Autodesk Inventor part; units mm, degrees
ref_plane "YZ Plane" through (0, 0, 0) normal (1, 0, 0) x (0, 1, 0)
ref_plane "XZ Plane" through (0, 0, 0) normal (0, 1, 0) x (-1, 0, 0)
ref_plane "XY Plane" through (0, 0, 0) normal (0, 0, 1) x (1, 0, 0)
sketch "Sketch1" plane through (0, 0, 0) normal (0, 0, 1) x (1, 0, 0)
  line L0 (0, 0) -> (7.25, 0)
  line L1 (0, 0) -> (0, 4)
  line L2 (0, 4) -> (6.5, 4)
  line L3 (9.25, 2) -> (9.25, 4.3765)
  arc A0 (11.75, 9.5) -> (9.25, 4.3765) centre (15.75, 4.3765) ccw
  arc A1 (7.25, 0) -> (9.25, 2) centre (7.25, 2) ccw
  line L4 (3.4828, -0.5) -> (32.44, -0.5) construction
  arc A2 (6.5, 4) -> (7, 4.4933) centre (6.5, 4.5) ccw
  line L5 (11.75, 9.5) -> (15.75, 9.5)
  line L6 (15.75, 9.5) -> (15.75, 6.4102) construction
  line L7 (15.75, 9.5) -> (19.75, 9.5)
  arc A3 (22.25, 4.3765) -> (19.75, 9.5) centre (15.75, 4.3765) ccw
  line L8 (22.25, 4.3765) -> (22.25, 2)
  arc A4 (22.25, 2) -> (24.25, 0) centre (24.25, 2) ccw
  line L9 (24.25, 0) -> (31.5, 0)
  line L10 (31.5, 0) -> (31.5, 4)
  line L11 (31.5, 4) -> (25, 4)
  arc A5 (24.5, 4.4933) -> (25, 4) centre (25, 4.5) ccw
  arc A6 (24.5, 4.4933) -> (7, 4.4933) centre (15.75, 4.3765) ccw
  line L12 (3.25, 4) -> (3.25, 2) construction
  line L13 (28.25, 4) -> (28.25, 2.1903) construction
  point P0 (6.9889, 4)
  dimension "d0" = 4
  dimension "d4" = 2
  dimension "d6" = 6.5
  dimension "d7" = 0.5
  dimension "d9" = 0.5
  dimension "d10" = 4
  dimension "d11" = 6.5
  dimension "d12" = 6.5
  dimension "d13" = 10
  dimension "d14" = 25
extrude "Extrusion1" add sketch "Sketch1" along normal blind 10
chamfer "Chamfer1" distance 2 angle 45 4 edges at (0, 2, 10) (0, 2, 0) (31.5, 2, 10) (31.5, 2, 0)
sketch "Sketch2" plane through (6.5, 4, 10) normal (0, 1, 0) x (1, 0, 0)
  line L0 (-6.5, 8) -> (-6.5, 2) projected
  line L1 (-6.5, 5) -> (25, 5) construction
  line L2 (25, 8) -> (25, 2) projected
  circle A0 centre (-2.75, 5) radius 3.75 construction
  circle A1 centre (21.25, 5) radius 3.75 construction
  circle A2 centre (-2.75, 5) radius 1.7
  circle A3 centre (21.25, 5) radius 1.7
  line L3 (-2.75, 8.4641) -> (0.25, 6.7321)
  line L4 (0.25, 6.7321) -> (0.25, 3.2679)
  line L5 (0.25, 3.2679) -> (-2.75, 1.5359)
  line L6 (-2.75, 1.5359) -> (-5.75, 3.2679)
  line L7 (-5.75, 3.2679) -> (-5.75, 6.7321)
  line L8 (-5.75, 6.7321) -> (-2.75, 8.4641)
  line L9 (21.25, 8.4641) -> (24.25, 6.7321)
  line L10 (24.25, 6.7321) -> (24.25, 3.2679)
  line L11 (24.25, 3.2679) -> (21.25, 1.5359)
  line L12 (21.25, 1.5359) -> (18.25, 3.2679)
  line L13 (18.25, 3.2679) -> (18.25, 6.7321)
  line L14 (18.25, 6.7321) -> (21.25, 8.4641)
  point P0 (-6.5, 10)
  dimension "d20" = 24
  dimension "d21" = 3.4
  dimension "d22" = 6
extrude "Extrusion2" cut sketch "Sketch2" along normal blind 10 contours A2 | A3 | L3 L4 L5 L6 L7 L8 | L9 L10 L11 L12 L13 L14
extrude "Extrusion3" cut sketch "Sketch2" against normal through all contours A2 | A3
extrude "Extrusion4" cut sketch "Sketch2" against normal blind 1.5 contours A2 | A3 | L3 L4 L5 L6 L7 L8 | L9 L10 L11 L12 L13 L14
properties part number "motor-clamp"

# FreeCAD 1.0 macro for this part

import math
import FreeCAD as App
import Part
import Sketcher
Q = App.Units.Quantity


def edges_at(feature, points):
    """Names of the edges that pass closest to the given points."""
    edges = feature.Shape.Edges
    near = lambda p: min(range(len(edges)), key=lambda i: edges[i].distToShape(Part.Vertex(*p))[0])
    return sorted({f"Edge{near(p) + 1}" for p in points})


def add_polygon(sketch, points):
    """Adds a closed chain of lines whose ends are joined by coincident constraints."""
    first, n = sketch.GeometryCount, len(points)
    for a, b in zip(points, points[1:] + points[:1]):
        sketch.addGeometry(Part.LineSegment(App.Vector(*a, 0), App.Vector(*b, 0)), False)
    for i in range(n):
        sketch.addConstraint(Sketcher.Constraint("Coincident", first + i, 2, first + (i + 1) % n, 1))

doc = App.newDocument("Part")
body = doc.addObject("PartDesign::Body", "Body")

# Sketch on XY plane
sketch1 = doc.addObject("Sketcher::SketchObject", "Sketch")
body.addObject(sketch1)
sketch1.AttachmentSupport = (doc.XY_Plane, [""])
sketch1.MapMode = "FlatFace"
sketch1.addGeometry([
    Part.LineSegment(App.Vector(0, 4, 0), App.Vector(0, 0, 0)),  # 0
    Part.LineSegment(App.Vector(0, 0, 0), App.Vector(7.2, 0, 0)),  # 1
    Part.ArcOfCircle(Part.Circle(App.Vector(7.2, 2, 0), App.Vector(0, 0, 1), 2), math.radians(-90), math.radians(0)),  # 2
    Part.LineSegment(App.Vector(9.2, 2, 0), App.Vector(9.2, 4.4, 0)),  # 3
    Part.ArcOfCircle(Part.Circle(App.Vector(15.8, 4.4, 0), App.Vector(0, 0, 1), 6.5), math.radians(128), math.radians(180)),  # 4
    Part.LineSegment(App.Vector(11.8, 9.5, 0), App.Vector(19.8, 9.5, 0)),  # 5
    Part.ArcOfCircle(Part.Circle(App.Vector(15.8, 4.4, 0), App.Vector(0, 0, 1), 6.5), math.radians(0), math.radians(52)),  # 6
    Part.LineSegment(App.Vector(22.2, 4.4, 0), App.Vector(22.2, 2, 0)),  # 7
    Part.ArcOfCircle(Part.Circle(App.Vector(24.2, 2, 0), App.Vector(0, 0, 1), 2), math.radians(180), math.radians(270)),  # 8
    Part.LineSegment(App.Vector(24.2, 0, 0), App.Vector(31.5, 0, 0)),  # 9
    Part.LineSegment(App.Vector(31.5, 0, 0), App.Vector(31.5, 4, 0)),  # 10
    Part.LineSegment(App.Vector(31.5, 4, 0), App.Vector(25, 4, 0)),  # 11
    Part.ArcOfCircle(Part.Circle(App.Vector(25, 4.5, 0), App.Vector(0, 0, 1), 0.5), math.radians(-179), math.radians(-90)),  # 12
    Part.ArcOfCircle(Part.Circle(App.Vector(15.8, 4.4, 0), App.Vector(0, 0, 1), 8.8), math.radians(1), math.radians(179)),  # 13
    Part.ArcOfCircle(Part.Circle(App.Vector(6.5, 4.5, 0), App.Vector(0, 0, 1), 0.5), math.radians(-90), math.radians(-1)),  # 14
    Part.LineSegment(App.Vector(6.5, 4, 0), App.Vector(0, 4, 0)),  # 15
], False)
sketch1.addConstraint([
    Sketcher.Constraint("Coincident", 0, 2, 1, 1),
    Sketcher.Constraint("Tangent", 1, 2, 2, 1),
    Sketcher.Constraint("Tangent", 2, 2, 3, 1),
    Sketcher.Constraint("Tangent", 3, 2, 4, 2),
    Sketcher.Constraint("Coincident", 4, 1, 5, 1),
    Sketcher.Constraint("Coincident", 5, 2, 6, 2),
    Sketcher.Constraint("Tangent", 6, 1, 7, 1),
    Sketcher.Constraint("Tangent", 7, 2, 8, 1),
    Sketcher.Constraint("Tangent", 8, 2, 9, 1),
    Sketcher.Constraint("Coincident", 9, 2, 10, 1),
    Sketcher.Constraint("Coincident", 10, 2, 11, 1),
    Sketcher.Constraint("Tangent", 11, 2, 12, 2),
    Sketcher.Constraint("Tangent", 12, 1, 13, 1),
    Sketcher.Constraint("Tangent", 13, 2, 14, 2),
    Sketcher.Constraint("Tangent", 14, 1, 15, 1),
    Sketcher.Constraint("Coincident", 15, 2, 0, 1),
    Sketcher.Constraint("Vertical", 0),
    Sketcher.Constraint("Horizontal", 1),
    Sketcher.Constraint("Vertical", 3),
    Sketcher.Constraint("Horizontal", 5),
    Sketcher.Constraint("Vertical", 7),
    Sketcher.Constraint("Horizontal", 9),
    Sketcher.Constraint("Vertical", 10),
    Sketcher.Constraint("Horizontal", 11),
    Sketcher.Constraint("Horizontal", 15),
    Sketcher.Constraint("Coincident", 0, 2, -1, 1),
    Sketcher.Constraint("Coincident", 6, 3, 4, 3),
    Sketcher.Constraint("Coincident", 13, 3, 4, 3),
    Sketcher.Constraint("Equal", 4, 6),
    Sketcher.Constraint("Equal", 2, 8),
    Sketcher.Constraint("Equal", 12, 14),
    Sketcher.Constraint("PointOnObject", 8, 2, -1),
    Sketcher.Constraint("Horizontal", 12, 3, 14, 3),
    Sketcher.Constraint("Equal", 1, 9),
    Sketcher.Constraint("Radius", 2, Q("2 mm")),
    Sketcher.Constraint("Radius", 4, Q("6.5 mm")),
    Sketcher.Constraint("Radius", 12, Q("0.5 mm")),
    Sketcher.Constraint("DistanceY", 0, 2, 0, 1, Q("4 mm")),
    Sketcher.Constraint("DistanceX", 11, 2, 11, 1, Q("6.5 mm")),
    Sketcher.Constraint("DistanceX", -1, 1, 12, 3, Q("25 mm")),
    Sketcher.Constraint("DistanceX", 4, 1, 4, 3, Q("4 mm")),
    Sketcher.Constraint("DistanceY", 14, 3, 4, 1, Q("5 mm")),
])
pad1 = doc.addObject("PartDesign::Pad", "Pad")
body.addObject(pad1)
pad1.Profile = sketch1
pad1.Length = 10
doc.recompute()

chamfer = doc.addObject("PartDesign::Chamfer", "Chamfer")
body.addObject(chamfer)
chamfer.Base = (pad1, edges_at(pad1, [
    (0, 2, 10),
    (0, 2, 0),
    (31.5, 2, 10),
    (31.5, 2, 0),
]))
chamfer.Size = 2

# Sketch on XZ plane
sketch2 = doc.addObject("Sketcher::SketchObject", "Sketch001")
body.addObject(sketch2)
sketch2.AttachmentSupport = (doc.XZ_Plane, [""])
sketch2.MapMode = "FlatFace"
sketch2.AttachmentOffset = App.Placement(App.Vector(0, 0, -4), App.Rotation())
add_polygon(sketch2, [(6.8, 3.3), (3.8, 1.5), (0.8, 3.3), (0.8, 6.7), (3.8, 8.5), (6.8, 6.7)])  # lines 0-5
add_polygon(sketch2, [(30.8, 3.3), (27.8, 1.5), (24.8, 3.3), (24.8, 6.7), (27.8, 8.5), (30.8, 6.7)])  # lines 6-11
sketch2.addConstraint([
    Sketcher.Constraint("Vertical", 2),
    Sketcher.Constraint("Vertical", 5),
    Sketcher.Constraint("Vertical", 8),
    Sketcher.Constraint("Vertical", 11),
    Sketcher.Constraint("Parallel", 0, 3),
    Sketcher.Constraint("Parallel", 1, 4),
    Sketcher.Constraint("Parallel", 3, 6),
    Sketcher.Constraint("Parallel", 4, 7),
    Sketcher.Constraint("Parallel", 6, 9),
    Sketcher.Constraint("Parallel", 7, 10),
    Sketcher.Constraint("Horizontal", 2, 2, 4, 2),
    Sketcher.Constraint("Horizontal", 1, 2, 5, 2),
    Sketcher.Constraint("Horizontal", 0, 2, 6, 2),
    Sketcher.Constraint("Horizontal", 5, 2, 7, 2),
    Sketcher.Constraint("Horizontal", 4, 2, 8, 2),
    Sketcher.Constraint("Horizontal", 3, 2, 9, 2),
    Sketcher.Constraint("Horizontal", 8, 2, 10, 2),
    Sketcher.Constraint("Vertical", 0, 2, 3, 2),
    Sketcher.Constraint("DistanceX", 2, 2, 4, 2, Q("6 mm")),
    Sketcher.Constraint("DistanceX", 0, 2, 6, 2, Q("24 mm")),
    Sketcher.Constraint("Angle", 0, Q("-150.0007 deg")),
    Sketcher.Constraint("DistanceX", -1, 1, 0, 2, Q("3.75 mm")),
    Sketcher.Constraint("DistanceY", 2, 1, 2, 2, Q("3.4642 mm")),
    Sketcher.Constraint("DistanceY", -1, 1, 0, 2, Q("1.536 mm")),
])
pocket1 = doc.addObject("PartDesign::Pocket", "Pocket")
body.addObject(pocket1)
pocket1.Profile = sketch2
pocket1.Length = 10

# Sketch on XZ plane
sketch3 = doc.addObject("Sketcher::SketchObject", "Sketch002")
body.addObject(sketch3)
sketch3.AttachmentSupport = (doc.XZ_Plane, [""])
sketch3.MapMode = "FlatFace"
sketch3.AttachmentOffset = App.Placement(App.Vector(0, 0, -4), App.Rotation())
sketch3.addGeometry([
    Part.Circle(App.Vector(3.8, 5, 0), App.Vector(0, 0, 1), 1.7),
    Part.Circle(App.Vector(27.8, 5, 0), App.Vector(0, 0, 1), 1.7),
], False)
sketch3.addConstraint([
    Sketcher.Constraint("Equal", 0, 1),
    Sketcher.Constraint("Horizontal", 0, 3, 1, 3),
    Sketcher.Constraint("Diameter", 0, Q("3.4 mm")),
    Sketcher.Constraint("DistanceX", 0, 3, 1, 3, Q("24 mm")),
    Sketcher.Constraint("DistanceY", -1, 1, 0, 3, Q("5 mm")),
    Sketcher.Constraint("DistanceX", -1, 1, 0, 3, Q("3.75 mm")),
])
pocket2 = doc.addObject("PartDesign::Pocket", "Pocket001")
body.addObject(pocket2)
pocket2.Profile = sketch3
pocket2.Type = "ThroughAll"
pocket2.Reversed = True

# Sketch on XZ plane
sketch4 = doc.addObject("Sketcher::SketchObject", "Sketch003")
body.addObject(sketch4)
sketch4.AttachmentSupport = (doc.XZ_Plane, [""])
sketch4.MapMode = "FlatFace"
sketch4.AttachmentOffset = App.Placement(App.Vector(0, 0, -4), App.Rotation())
add_polygon(sketch4, [(6.8, 3.3), (3.8, 1.5), (0.8, 3.3), (0.8, 6.7), (3.8, 8.5), (6.8, 6.7)])  # lines 0-5
add_polygon(sketch4, [(30.8, 3.3), (27.8, 1.5), (24.8, 3.3), (24.8, 6.7), (27.8, 8.5), (30.8, 6.7)])  # lines 6-11
sketch4.addConstraint([
    Sketcher.Constraint("Vertical", 2),
    Sketcher.Constraint("Vertical", 5),
    Sketcher.Constraint("Vertical", 8),
    Sketcher.Constraint("Vertical", 11),
    Sketcher.Constraint("Parallel", 0, 3),
    Sketcher.Constraint("Parallel", 1, 4),
    Sketcher.Constraint("Parallel", 3, 6),
    Sketcher.Constraint("Parallel", 4, 7),
    Sketcher.Constraint("Parallel", 6, 9),
    Sketcher.Constraint("Parallel", 7, 10),
    Sketcher.Constraint("Horizontal", 2, 2, 4, 2),
    Sketcher.Constraint("Horizontal", 1, 2, 5, 2),
    Sketcher.Constraint("Horizontal", 0, 2, 6, 2),
    Sketcher.Constraint("Horizontal", 5, 2, 7, 2),
    Sketcher.Constraint("Horizontal", 4, 2, 8, 2),
    Sketcher.Constraint("Horizontal", 3, 2, 9, 2),
    Sketcher.Constraint("Horizontal", 8, 2, 10, 2),
    Sketcher.Constraint("Vertical", 0, 2, 3, 2),
    Sketcher.Constraint("DistanceX", 2, 2, 4, 2, Q("6 mm")),
    Sketcher.Constraint("DistanceX", 0, 2, 6, 2, Q("24 mm")),
    Sketcher.Constraint("Angle", 0, Q("-150.0007 deg")),
    Sketcher.Constraint("DistanceX", -1, 1, 0, 2, Q("3.75 mm")),
    Sketcher.Constraint("DistanceY", 2, 1, 2, 2, Q("3.4642 mm")),
    Sketcher.Constraint("DistanceY", -1, 1, 0, 2, Q("1.536 mm")),
])
pocket3 = doc.addObject("PartDesign::Pocket", "Pocket002")
body.addObject(pocket3)
pocket3.Profile = sketch4
pocket3.Length = 1.5
pocket3.Reversed = True

doc.recompute()
